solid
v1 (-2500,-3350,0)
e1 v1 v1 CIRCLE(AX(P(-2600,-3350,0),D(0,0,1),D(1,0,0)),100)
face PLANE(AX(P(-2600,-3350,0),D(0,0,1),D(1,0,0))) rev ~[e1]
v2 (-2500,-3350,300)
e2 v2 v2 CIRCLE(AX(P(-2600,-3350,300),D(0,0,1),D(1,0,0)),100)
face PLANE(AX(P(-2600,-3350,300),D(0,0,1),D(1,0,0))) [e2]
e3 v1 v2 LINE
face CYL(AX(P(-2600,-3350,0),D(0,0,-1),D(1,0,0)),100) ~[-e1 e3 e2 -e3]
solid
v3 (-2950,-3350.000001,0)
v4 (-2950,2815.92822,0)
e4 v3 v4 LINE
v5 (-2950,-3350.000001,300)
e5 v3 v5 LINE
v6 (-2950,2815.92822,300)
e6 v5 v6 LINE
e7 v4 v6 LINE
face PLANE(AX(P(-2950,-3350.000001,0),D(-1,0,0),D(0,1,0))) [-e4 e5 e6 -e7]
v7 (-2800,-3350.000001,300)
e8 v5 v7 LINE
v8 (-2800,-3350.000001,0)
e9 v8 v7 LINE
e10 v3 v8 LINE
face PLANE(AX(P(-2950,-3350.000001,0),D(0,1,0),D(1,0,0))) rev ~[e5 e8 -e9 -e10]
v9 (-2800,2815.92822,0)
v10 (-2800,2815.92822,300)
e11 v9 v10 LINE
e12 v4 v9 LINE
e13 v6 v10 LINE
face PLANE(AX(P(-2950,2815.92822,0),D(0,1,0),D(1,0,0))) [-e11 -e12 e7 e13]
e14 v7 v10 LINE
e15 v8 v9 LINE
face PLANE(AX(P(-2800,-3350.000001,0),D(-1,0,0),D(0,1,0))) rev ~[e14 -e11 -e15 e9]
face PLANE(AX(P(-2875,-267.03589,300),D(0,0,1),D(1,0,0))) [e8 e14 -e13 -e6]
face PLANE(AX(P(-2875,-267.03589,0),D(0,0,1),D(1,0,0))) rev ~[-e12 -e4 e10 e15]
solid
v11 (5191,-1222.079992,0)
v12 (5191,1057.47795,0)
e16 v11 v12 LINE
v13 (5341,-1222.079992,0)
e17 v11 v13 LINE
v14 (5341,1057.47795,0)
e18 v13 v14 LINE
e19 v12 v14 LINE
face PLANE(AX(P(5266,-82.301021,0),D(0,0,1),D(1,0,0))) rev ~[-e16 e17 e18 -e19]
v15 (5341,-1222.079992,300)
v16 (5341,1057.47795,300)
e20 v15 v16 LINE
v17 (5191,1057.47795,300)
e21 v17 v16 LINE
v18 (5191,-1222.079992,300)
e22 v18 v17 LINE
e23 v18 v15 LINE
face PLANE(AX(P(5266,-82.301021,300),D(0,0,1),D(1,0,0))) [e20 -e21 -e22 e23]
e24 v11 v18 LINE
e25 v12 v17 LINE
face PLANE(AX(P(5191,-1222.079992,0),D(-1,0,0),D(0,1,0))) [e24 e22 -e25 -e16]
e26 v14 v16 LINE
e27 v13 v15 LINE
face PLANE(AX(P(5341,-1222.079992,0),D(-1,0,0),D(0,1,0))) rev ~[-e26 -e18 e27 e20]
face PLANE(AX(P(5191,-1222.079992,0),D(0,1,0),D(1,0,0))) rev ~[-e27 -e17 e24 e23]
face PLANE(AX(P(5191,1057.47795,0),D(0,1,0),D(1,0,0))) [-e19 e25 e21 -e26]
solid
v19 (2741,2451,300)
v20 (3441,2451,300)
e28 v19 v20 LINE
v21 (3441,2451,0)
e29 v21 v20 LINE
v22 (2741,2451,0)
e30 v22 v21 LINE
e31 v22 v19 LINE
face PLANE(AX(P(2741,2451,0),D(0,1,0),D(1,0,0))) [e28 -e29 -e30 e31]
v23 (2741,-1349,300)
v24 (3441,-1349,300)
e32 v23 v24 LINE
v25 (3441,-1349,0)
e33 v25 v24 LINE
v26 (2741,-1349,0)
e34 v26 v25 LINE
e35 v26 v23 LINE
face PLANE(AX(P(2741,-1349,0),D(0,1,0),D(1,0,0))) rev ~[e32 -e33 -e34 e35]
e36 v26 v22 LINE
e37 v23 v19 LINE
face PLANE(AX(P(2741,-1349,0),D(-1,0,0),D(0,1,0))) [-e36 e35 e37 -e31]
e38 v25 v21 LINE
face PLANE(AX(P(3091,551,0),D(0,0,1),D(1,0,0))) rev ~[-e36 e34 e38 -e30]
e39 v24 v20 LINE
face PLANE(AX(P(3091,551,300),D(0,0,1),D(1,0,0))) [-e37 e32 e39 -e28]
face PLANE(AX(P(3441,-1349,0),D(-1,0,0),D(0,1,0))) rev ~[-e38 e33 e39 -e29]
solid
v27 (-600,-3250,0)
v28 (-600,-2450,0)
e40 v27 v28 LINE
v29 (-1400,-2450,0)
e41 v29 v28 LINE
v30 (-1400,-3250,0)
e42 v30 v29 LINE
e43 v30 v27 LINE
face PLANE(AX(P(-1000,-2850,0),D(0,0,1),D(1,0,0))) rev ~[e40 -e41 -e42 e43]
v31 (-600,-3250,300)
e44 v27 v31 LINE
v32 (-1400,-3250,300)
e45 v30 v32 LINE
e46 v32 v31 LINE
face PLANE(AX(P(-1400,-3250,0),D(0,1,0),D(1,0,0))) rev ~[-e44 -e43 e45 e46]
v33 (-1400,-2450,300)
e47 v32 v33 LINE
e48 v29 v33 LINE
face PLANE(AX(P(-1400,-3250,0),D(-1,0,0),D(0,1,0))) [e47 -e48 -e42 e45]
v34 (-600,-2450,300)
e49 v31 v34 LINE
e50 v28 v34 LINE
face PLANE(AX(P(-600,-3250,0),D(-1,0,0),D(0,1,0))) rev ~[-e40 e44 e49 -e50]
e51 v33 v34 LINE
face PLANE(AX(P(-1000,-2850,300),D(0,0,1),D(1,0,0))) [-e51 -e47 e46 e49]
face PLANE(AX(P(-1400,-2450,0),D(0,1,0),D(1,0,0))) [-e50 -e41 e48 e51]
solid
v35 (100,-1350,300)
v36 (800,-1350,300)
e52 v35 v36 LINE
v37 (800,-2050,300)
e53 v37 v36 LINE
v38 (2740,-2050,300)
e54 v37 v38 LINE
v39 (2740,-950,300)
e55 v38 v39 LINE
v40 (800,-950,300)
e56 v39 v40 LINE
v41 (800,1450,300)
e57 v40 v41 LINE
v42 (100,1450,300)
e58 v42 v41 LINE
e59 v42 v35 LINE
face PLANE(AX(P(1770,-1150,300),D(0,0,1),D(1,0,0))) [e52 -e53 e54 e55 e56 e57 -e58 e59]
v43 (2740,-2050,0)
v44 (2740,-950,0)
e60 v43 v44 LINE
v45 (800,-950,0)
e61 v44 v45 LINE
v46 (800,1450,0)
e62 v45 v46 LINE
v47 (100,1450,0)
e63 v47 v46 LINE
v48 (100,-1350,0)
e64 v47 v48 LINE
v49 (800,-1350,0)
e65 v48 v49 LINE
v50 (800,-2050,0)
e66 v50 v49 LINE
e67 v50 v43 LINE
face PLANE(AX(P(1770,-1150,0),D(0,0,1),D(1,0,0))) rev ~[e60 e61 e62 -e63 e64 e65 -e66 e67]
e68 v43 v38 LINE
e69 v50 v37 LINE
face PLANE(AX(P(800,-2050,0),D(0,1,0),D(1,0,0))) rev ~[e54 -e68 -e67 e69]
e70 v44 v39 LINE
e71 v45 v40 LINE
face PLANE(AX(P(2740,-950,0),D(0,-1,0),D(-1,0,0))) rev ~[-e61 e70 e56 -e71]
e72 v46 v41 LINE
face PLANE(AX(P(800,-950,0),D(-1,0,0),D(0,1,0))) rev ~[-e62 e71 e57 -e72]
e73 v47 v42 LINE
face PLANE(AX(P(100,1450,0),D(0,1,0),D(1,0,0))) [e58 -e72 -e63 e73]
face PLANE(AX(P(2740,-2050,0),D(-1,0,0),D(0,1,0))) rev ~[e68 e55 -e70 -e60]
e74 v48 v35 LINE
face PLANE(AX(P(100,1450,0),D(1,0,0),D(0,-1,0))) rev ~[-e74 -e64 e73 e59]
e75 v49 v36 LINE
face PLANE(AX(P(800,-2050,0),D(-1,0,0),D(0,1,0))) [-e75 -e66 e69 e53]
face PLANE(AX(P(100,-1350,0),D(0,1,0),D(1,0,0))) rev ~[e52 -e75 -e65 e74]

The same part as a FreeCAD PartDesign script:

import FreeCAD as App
import Part
import Sketcher

doc = App.newDocument("Part")
body = doc.addObject("PartDesign::Body", "Body")
body.AllowCompound = True

sketch1 = body.newObject("Sketcher::SketchObject", "Sketch")
sketch1.AttachmentSupport = (doc.getObject("XY_Plane"), [""])
sketch1.MapMode = "FlatFace"
sketch1.addGeometry([
    Part.LineSegment(App.Vector(2740, -950, 0), App.Vector(800, -950, 0)),
    Part.LineSegment(App.Vector(800, -950, 0), App.Vector(800, 1450, 0)),
    Part.LineSegment(App.Vector(800, 1450, 0), App.Vector(100, 1450, 0)),
    Part.LineSegment(App.Vector(100, 1450, 0), App.Vector(100, -1350, 0)),
    Part.LineSegment(App.Vector(100, -1350, 0), App.Vector(800, -1350, 0)),
    Part.LineSegment(App.Vector(800, -1350, 0), App.Vector(800, -2050, 0)),
    Part.LineSegment(App.Vector(800, -2050, 0), App.Vector(2740, -2050, 0)),
    Part.LineSegment(App.Vector(2740, -2050, 0), App.Vector(2740, -950, 0)),
    Part.LineSegment(App.Vector(5191, 1057, 0), App.Vector(5191, -1222, 0)),
    Part.LineSegment(App.Vector(5191, -1222, 0), App.Vector(5341, -1222, 0)),
    Part.LineSegment(App.Vector(5341, -1222, 0), App.Vector(5341, 1057, 0)),
    Part.LineSegment(App.Vector(5341, 1057, 0), App.Vector(5191, 1057, 0)),
    Part.LineSegment(App.Vector(-1400, -2450, 0), App.Vector(-1400, -3250, 0)),
    Part.LineSegment(App.Vector(-1400, -3250, 0), App.Vector(-600, -3250, 0)),
    Part.LineSegment(App.Vector(-600, -3250, 0), App.Vector(-600, -2450, 0)),
    Part.LineSegment(App.Vector(-600, -2450, 0), App.Vector(-1400, -2450, 0)),
    Part.Circle(App.Vector(-2600, -3350, 0), App.Vector(0, 0, 1), 100),
    Part.LineSegment(App.Vector(-2950, 2816, 0), App.Vector(-2950, -3350, 0)),
    Part.LineSegment(App.Vector(-2950, -3350, 0), App.Vector(-2800, -3350, 0)),
    Part.LineSegment(App.Vector(-2800, -3350, 0), App.Vector(-2800, 2816, 0)),
    Part.LineSegment(App.Vector(-2800, 2816, 0), App.Vector(-2950, 2816, 0)),
    Part.LineSegment(App.Vector(2741, 2451, 0), App.Vector(2741, -1349, 0)),
    Part.LineSegment(App.Vector(2741, -1349, 0), App.Vector(3441, -1349, 0)),
    Part.LineSegment(App.Vector(3441, -1349, 0), App.Vector(3441, 2451, 0)),
    Part.LineSegment(App.Vector(3441, 2451, 0), App.Vector(2741, 2451, 0)),
], False)
sketch1.addConstraint([
    Sketcher.Constraint("Coincident", 0, 2, 1, 1),
    Sketcher.Constraint("Coincident", 1, 2, 2, 1),
    Sketcher.Constraint("Coincident", 2, 2, 3, 1),
    Sketcher.Constraint("Coincident", 3, 2, 4, 1),
    Sketcher.Constraint("Coincident", 4, 2, 5, 1),
    Sketcher.Constraint("Coincident", 5, 2, 6, 1),
    Sketcher.Constraint("Coincident", 6, 2, 7, 1),
    Sketcher.Constraint("Coincident", 7, 2, 0, 1),
    Sketcher.Constraint("Coincident", 8, 2, 9, 1),
    Sketcher.Constraint("Coincident", 9, 2, 10, 1),
    Sketcher.Constraint("Coincident", 10, 2, 11, 1),
    Sketcher.Constraint("Coincident", 11, 2, 8, 1),
    Sketcher.Constraint("Coincident", 12, 2, 13, 1),
    Sketcher.Constraint("Coincident", 13, 2, 14, 1),
    Sketcher.Constraint("Coincident", 14, 2, 15, 1),
    Sketcher.Constraint("Coincident", 15, 2, 12, 1),
    Sketcher.Constraint("Coincident", 17, 2, 18, 1),
    Sketcher.Constraint("Coincident", 18, 2, 19, 1),
    Sketcher.Constraint("Coincident", 19, 2, 20, 1),
    Sketcher.Constraint("Coincident", 20, 2, 17, 1),
    Sketcher.Constraint("Coincident", 21, 2, 22, 1),
    Sketcher.Constraint("Coincident", 22, 2, 23, 1),
    Sketcher.Constraint("Coincident", 23, 2, 24, 1),
    Sketcher.Constraint("Coincident", 24, 2, 21, 1),
    Sketcher.Constraint("Horizontal", 0),
    Sketcher.Constraint("Vertical", 1),
    Sketcher.Constraint("Horizontal", 2),
    Sketcher.Constraint("Vertical", 3),
    Sketcher.Constraint("Horizontal", 4),
    Sketcher.Constraint("Vertical", 5),
    Sketcher.Constraint("Horizontal", 6),
    Sketcher.Constraint("Vertical", 7),
    Sketcher.Constraint("Vertical", 8),
    Sketcher.Constraint("Horizontal", 9),
    Sketcher.Constraint("Vertical", 10),
    Sketcher.Constraint("Horizontal", 11),
    Sketcher.Constraint("Vertical", 12),
    Sketcher.Constraint("Horizontal", 13),
    Sketcher.Constraint("Vertical", 14),
    Sketcher.Constraint("Horizontal", 15),
    Sketcher.Constraint("Vertical", 17),
    Sketcher.Constraint("Horizontal", 18),
    Sketcher.Constraint("Vertical", 19),
    Sketcher.Constraint("Horizontal", 20),
    Sketcher.Constraint("Vertical", 21),
    Sketcher.Constraint("Horizontal", 22),
    Sketcher.Constraint("Vertical", 23),
    Sketcher.Constraint("Horizontal", 24),
    Sketcher.Constraint("Horizontal", 16, 3, 17, 2),
    Sketcher.Constraint("Vertical", 1, 2, 4, 2),
    Sketcher.Constraint("Equal", 11, 18),
    Sketcher.Constraint("Equal", 4, 22),
    Sketcher.Constraint("Equal", 24, 5),
    Sketcher.Constraint("Equal", 15, 12),
    Sketcher.Constraint("Diameter", 16, 200.0),
    Sketcher.Constraint("DistanceX", 0, 2, 0, 1, 1940.0),
    Sketcher.Constraint("DistanceX", 2, 2, 2, 1, 700.0),
    Sketcher.Constraint("DistanceX", 9, 1, 9, 2, 150.0),
    Sketcher.Constraint("DistanceX", 13, 1, 13, 2, 800.0),
    Sketcher.Constraint("DistanceY", 1, 1, 1, 2, 2400.0),
    Sketcher.Constraint("DistanceY", 3, 2, 3, 1, 2800.0),
    Sketcher.Constraint("DistanceY", 21, 2, 21, 1, 3800.0),
    Sketcher.Constraint("DistanceX", 16, 3, -1, 1, 2600.0),
    Sketcher.Constraint("DistanceY", 16, 3, -1, 1, 3350.0),
    Sketcher.Constraint("DistanceX", -1, 1, 0, 2, 800.0),
    Sketcher.Constraint("DistanceY", 0, 2, -1, 1, 950.0),
    Sketcher.Constraint("DistanceX", -1, 1, 8, 2, 5191.0),
    Sketcher.Constraint("DistanceX", 12, 2, -1, 1, 1400.0),
    Sketcher.Constraint("DistanceY", 12, 2, -1, 1, 3250.0),
    Sketcher.Constraint("DistanceX", 17, 2, -1, 1, 2950.0),
    Sketcher.Constraint("DistanceX", -1, 1, 21, 2, 2741.0),
    Sketcher.Constraint("DistanceY", 21, 2, -1, 1, 1349.0),
    Sketcher.Constraint("DistanceY", 17, 2, 17, 1, 6165.928221),
    Sketcher.Constraint("DistanceY", 8, 2, 8, 1, 2279.557943),
    Sketcher.Constraint("DistanceY", -1, 1, 10, 2, 1057.47795),
])
pad1 = body.newObject("PartDesign::Pad", "Pad")
pad1.Profile = sketch1
pad1.Length = 300

doc.recompute()
